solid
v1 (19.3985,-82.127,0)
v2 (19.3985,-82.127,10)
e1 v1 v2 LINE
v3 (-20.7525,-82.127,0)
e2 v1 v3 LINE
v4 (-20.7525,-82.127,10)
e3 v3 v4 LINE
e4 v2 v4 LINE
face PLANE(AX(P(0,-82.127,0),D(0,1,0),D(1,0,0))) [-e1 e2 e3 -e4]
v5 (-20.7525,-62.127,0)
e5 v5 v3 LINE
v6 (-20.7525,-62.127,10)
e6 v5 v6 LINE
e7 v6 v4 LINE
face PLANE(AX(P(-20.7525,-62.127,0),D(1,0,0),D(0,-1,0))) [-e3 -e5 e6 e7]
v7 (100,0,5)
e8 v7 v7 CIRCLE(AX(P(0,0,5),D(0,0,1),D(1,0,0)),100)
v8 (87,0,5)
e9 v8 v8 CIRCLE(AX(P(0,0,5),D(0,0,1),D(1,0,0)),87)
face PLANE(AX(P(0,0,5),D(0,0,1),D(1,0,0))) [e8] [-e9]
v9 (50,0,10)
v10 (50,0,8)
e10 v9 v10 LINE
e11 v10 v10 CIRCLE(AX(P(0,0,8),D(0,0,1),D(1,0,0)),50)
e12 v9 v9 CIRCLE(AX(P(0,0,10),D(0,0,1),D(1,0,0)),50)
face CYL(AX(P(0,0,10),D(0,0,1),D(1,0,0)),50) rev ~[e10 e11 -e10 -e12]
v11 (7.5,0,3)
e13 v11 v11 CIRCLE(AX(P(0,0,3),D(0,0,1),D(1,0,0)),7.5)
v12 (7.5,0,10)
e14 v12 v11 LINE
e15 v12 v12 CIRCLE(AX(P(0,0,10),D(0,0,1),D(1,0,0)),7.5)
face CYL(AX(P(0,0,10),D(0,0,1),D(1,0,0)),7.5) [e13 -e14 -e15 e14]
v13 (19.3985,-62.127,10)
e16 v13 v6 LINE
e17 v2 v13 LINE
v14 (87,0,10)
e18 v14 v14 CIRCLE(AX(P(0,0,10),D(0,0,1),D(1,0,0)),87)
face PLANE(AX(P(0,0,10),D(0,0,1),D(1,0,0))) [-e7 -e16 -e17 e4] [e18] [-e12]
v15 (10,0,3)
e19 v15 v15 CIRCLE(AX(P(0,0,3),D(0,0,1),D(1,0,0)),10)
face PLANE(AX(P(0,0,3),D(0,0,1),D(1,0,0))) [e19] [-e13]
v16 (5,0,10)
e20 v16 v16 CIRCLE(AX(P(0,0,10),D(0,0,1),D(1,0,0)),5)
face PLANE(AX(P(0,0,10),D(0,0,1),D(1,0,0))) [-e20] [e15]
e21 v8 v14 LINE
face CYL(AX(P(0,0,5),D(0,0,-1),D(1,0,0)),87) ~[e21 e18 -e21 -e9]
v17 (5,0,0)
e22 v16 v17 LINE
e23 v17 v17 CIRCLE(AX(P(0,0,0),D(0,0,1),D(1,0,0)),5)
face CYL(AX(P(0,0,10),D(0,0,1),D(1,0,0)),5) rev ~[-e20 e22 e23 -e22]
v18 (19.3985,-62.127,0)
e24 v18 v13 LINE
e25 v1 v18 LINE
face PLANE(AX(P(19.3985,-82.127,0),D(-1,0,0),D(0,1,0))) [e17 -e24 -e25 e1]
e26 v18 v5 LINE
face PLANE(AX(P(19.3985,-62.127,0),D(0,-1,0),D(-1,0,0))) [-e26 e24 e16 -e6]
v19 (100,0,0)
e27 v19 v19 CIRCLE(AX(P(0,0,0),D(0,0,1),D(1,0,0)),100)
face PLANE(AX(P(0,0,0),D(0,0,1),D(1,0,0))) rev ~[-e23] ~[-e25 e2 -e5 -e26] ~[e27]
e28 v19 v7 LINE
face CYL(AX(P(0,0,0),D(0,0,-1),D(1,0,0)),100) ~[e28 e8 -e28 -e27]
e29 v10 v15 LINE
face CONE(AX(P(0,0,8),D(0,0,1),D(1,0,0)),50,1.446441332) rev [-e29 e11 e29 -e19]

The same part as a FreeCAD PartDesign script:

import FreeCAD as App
import Part
import Sketcher
Q = App.Units.Quantity


def edges_at(feature, points):
    """Names of the edges that pass closest to the given points."""
    edges = feature.Shape.Edges
    near = lambda p: min(range(len(edges)), key=lambda i: edges[i].distToShape(Part.Vertex(*p))[0])
    return sorted({f"Edge{near(p) + 1}" for p in points})


def add_polygon(sketch, points):
    """Adds a closed chain of lines whose ends are joined by coincident constraints."""
    first, n = sketch.GeometryCount, len(points)
    for a, b in zip(points, points[1:] + points[:1]):
        sketch.addGeometry(Part.LineSegment(App.Vector(*a, 0), App.Vector(*b, 0)), False)
    for i in range(n):
        sketch.addConstraint(Sketcher.Constraint("Coincident", first + i, 2, first + (i + 1) % n, 1))

doc = App.newDocument("Part")
params = doc.addObject("Spreadsheet::Sheet", "Params")
for row, (alias, value) in enumerate([
    ("sketch1_diameter", "200 mm"),
    ("pad1_length", "5 mm"),
    ("sketch2_diameter", "174 mm"),
    ("pad2_length", "5 mm"),
    ("sketch3_diameter", "10 mm"),
    ("pocket1_length", "10 mm"),
    ("sketch4_diameter", "100 mm"),
    ("sketch4_diameter2", "15 mm"),
    ("pocket2_length", "7 mm"),
    ("chamfer_size", "5 mm"),
    ("chamfer_size2", "40 mm"),
    ("sketch5_height", "20 mm"),
    ("pocket3_length", "10 mm"),
], start=1):
    params.set(f"A{row}", alias)
    params.set(f"B{row}", "=" + value)
    params.setAlias(f"B{row}", alias)

body = doc.addObject("PartDesign::Body", "Body")

sketch1 = body.newObject("Sketcher::SketchObject", "Sketch")
sketch1.AttachmentSupport = (doc.getObject("XY_Plane"), [""])
sketch1.MapMode = "FlatFace"
sketch1.addGeometry(Part.Circle(App.Vector(0, 0, 0), App.Vector(0, 0, 1), 100), False)
sketch1.addConstraint([
    Sketcher.Constraint("Coincident", 0, 3, -1, 1),
    Sketcher.Constraint("Diameter", 0, Q("200 mm")),
])
sketch1.setExpression("Constraints[1]", "Params.sketch1_diameter")
pad1 = body.newObject("PartDesign::Pad", "Pad")
pad1.Profile = sketch1
pad1.setExpression("Length", "Params.pad1_length")

sketch2 = body.newObject("Sketcher::SketchObject", "Sketch001")
sketch2.AttachmentSupport = (doc.getObject("XY_Plane"), [""])
sketch2.MapMode = "FlatFace"
sketch2.AttachmentOffset = App.Placement(App.Vector(0, 0, 5), App.Rotation())
sketch2.addGeometry(Part.Circle(App.Vector(0, 0, 0), App.Vector(0, 0, 1), 87), False)
sketch2.addConstraint([
    Sketcher.Constraint("Coincident", 0, 3, -1, 1),
    Sketcher.Constraint("Diameter", 0, Q("174 mm")),
])
sketch2.setExpression("Constraints[1]", "Params.sketch2_diameter")
pad2 = body.newObject("PartDesign::Pad", "Pad001")
pad2.Profile = sketch2
pad2.setExpression("Length", "Params.pad2_length")

sketch3 = body.newObject("Sketcher::SketchObject", "Sketch002")
sketch3.AttachmentSupport = (doc.getObject("XY_Plane"), [""])
sketch3.MapMode = "FlatFace"
sketch3.AttachmentOffset = App.Placement(App.Vector(0, 0, 10), App.Rotation())
sketch3.addGeometry(Part.Circle(App.Vector(0, 0, 0), App.Vector(0, 0, 1), 5), False)
sketch3.addConstraint([
    Sketcher.Constraint("Coincident", 0, 3, -1, 1),
    Sketcher.Constraint("Diameter", 0, Q("10 mm")),
])
sketch3.setExpression("Constraints[1]", "Params.sketch3_diameter")
pocket1 = body.newObject("PartDesign::Pocket", "Pocket")
pocket1.Profile = sketch3
pocket1.setExpression("Length", "Params.pocket1_length")

sketch4 = body.newObject("Sketcher::SketchObject", "Sketch003")
sketch4.AttachmentSupport = (doc.getObject("XY_Plane"), [""])
sketch4.MapMode = "FlatFace"
sketch4.AttachmentOffset = App.Placement(App.Vector(0, 0, 10), App.Rotation())
sketch4.addGeometry([
    Part.Circle(App.Vector(0, 0, 0), App.Vector(0, 0, 1), 50),
    Part.Circle(App.Vector(0, 0, 0), App.Vector(0, 0, 1), 7.5),
], False)
sketch4.addConstraint([
    Sketcher.Constraint("Coincident", 0, 3, -1, 1),
    Sketcher.Constraint("Coincident", 1, 3, -1, 1),
    Sketcher.Constraint("Diameter", 0, Q("100 mm")),
    Sketcher.Constraint("Diameter", 1, Q("15 mm")),
])
sketch4.setExpression("Constraints[2]", "Params.sketch4_diameter")
sketch4.setExpression("Constraints[3]", "Params.sketch4_diameter2")
pocket2 = body.newObject("PartDesign::Pocket", "Pocket001")
pocket2.Profile = sketch4
pocket2.setExpression("Length", "Params.pocket2_length")
doc.recompute()

chamfer = body.newObject("PartDesign::Chamfer", "Chamfer")
chamfer.Base = (pocket2, edges_at(pocket2, [(-50, 0, 3)]))
chamfer.ChamferType = "Two distances"
chamfer.setExpression("Size", "Params.chamfer_size")
chamfer.setExpression("Size2", "Params.chamfer_size2")

sketch5 = body.newObject("Sketcher::SketchObject", "Sketch004")
sketch5.AttachmentSupport = (doc.getObject("XY_Plane"), [""])
sketch5.MapMode = "FlatFace"
add_polygon(sketch5, [(19.3985, -82.127), (-20.7525, -82.127), (-20.7525, -62.127), (19.3985, -62.127)])
sketch5.addConstraint([
    Sketcher.Constraint("Horizontal", 0),
    Sketcher.Constraint("Vertical", 1),
    Sketcher.Constraint("Horizontal", 2),
    Sketcher.Constraint("Vertical", 3),
    Sketcher.Constraint("DistanceY", 1, 1, 1, 2, Q("20 mm")),
    Sketcher.Constraint("DistanceX", 0, 2, 0, 1, Q("40.151 mm")),
    Sketcher.Constraint("DistanceX", 0, 2, -1, 1, Q("20.7525 mm")),
    Sketcher.Constraint("DistanceY", 0, 2, -1, 1, Q("82.127 mm")),
])
sketch5.setExpression("Constraints[8]", "Params.sketch5_height")
pocket3 = body.newObject("PartDesign::Pocket", "Pocket002")
pocket3.Profile = sketch5
pocket3.setExpression("Length", "Params.pocket3_length")
pocket3.Reversed = True

doc.recompute()
